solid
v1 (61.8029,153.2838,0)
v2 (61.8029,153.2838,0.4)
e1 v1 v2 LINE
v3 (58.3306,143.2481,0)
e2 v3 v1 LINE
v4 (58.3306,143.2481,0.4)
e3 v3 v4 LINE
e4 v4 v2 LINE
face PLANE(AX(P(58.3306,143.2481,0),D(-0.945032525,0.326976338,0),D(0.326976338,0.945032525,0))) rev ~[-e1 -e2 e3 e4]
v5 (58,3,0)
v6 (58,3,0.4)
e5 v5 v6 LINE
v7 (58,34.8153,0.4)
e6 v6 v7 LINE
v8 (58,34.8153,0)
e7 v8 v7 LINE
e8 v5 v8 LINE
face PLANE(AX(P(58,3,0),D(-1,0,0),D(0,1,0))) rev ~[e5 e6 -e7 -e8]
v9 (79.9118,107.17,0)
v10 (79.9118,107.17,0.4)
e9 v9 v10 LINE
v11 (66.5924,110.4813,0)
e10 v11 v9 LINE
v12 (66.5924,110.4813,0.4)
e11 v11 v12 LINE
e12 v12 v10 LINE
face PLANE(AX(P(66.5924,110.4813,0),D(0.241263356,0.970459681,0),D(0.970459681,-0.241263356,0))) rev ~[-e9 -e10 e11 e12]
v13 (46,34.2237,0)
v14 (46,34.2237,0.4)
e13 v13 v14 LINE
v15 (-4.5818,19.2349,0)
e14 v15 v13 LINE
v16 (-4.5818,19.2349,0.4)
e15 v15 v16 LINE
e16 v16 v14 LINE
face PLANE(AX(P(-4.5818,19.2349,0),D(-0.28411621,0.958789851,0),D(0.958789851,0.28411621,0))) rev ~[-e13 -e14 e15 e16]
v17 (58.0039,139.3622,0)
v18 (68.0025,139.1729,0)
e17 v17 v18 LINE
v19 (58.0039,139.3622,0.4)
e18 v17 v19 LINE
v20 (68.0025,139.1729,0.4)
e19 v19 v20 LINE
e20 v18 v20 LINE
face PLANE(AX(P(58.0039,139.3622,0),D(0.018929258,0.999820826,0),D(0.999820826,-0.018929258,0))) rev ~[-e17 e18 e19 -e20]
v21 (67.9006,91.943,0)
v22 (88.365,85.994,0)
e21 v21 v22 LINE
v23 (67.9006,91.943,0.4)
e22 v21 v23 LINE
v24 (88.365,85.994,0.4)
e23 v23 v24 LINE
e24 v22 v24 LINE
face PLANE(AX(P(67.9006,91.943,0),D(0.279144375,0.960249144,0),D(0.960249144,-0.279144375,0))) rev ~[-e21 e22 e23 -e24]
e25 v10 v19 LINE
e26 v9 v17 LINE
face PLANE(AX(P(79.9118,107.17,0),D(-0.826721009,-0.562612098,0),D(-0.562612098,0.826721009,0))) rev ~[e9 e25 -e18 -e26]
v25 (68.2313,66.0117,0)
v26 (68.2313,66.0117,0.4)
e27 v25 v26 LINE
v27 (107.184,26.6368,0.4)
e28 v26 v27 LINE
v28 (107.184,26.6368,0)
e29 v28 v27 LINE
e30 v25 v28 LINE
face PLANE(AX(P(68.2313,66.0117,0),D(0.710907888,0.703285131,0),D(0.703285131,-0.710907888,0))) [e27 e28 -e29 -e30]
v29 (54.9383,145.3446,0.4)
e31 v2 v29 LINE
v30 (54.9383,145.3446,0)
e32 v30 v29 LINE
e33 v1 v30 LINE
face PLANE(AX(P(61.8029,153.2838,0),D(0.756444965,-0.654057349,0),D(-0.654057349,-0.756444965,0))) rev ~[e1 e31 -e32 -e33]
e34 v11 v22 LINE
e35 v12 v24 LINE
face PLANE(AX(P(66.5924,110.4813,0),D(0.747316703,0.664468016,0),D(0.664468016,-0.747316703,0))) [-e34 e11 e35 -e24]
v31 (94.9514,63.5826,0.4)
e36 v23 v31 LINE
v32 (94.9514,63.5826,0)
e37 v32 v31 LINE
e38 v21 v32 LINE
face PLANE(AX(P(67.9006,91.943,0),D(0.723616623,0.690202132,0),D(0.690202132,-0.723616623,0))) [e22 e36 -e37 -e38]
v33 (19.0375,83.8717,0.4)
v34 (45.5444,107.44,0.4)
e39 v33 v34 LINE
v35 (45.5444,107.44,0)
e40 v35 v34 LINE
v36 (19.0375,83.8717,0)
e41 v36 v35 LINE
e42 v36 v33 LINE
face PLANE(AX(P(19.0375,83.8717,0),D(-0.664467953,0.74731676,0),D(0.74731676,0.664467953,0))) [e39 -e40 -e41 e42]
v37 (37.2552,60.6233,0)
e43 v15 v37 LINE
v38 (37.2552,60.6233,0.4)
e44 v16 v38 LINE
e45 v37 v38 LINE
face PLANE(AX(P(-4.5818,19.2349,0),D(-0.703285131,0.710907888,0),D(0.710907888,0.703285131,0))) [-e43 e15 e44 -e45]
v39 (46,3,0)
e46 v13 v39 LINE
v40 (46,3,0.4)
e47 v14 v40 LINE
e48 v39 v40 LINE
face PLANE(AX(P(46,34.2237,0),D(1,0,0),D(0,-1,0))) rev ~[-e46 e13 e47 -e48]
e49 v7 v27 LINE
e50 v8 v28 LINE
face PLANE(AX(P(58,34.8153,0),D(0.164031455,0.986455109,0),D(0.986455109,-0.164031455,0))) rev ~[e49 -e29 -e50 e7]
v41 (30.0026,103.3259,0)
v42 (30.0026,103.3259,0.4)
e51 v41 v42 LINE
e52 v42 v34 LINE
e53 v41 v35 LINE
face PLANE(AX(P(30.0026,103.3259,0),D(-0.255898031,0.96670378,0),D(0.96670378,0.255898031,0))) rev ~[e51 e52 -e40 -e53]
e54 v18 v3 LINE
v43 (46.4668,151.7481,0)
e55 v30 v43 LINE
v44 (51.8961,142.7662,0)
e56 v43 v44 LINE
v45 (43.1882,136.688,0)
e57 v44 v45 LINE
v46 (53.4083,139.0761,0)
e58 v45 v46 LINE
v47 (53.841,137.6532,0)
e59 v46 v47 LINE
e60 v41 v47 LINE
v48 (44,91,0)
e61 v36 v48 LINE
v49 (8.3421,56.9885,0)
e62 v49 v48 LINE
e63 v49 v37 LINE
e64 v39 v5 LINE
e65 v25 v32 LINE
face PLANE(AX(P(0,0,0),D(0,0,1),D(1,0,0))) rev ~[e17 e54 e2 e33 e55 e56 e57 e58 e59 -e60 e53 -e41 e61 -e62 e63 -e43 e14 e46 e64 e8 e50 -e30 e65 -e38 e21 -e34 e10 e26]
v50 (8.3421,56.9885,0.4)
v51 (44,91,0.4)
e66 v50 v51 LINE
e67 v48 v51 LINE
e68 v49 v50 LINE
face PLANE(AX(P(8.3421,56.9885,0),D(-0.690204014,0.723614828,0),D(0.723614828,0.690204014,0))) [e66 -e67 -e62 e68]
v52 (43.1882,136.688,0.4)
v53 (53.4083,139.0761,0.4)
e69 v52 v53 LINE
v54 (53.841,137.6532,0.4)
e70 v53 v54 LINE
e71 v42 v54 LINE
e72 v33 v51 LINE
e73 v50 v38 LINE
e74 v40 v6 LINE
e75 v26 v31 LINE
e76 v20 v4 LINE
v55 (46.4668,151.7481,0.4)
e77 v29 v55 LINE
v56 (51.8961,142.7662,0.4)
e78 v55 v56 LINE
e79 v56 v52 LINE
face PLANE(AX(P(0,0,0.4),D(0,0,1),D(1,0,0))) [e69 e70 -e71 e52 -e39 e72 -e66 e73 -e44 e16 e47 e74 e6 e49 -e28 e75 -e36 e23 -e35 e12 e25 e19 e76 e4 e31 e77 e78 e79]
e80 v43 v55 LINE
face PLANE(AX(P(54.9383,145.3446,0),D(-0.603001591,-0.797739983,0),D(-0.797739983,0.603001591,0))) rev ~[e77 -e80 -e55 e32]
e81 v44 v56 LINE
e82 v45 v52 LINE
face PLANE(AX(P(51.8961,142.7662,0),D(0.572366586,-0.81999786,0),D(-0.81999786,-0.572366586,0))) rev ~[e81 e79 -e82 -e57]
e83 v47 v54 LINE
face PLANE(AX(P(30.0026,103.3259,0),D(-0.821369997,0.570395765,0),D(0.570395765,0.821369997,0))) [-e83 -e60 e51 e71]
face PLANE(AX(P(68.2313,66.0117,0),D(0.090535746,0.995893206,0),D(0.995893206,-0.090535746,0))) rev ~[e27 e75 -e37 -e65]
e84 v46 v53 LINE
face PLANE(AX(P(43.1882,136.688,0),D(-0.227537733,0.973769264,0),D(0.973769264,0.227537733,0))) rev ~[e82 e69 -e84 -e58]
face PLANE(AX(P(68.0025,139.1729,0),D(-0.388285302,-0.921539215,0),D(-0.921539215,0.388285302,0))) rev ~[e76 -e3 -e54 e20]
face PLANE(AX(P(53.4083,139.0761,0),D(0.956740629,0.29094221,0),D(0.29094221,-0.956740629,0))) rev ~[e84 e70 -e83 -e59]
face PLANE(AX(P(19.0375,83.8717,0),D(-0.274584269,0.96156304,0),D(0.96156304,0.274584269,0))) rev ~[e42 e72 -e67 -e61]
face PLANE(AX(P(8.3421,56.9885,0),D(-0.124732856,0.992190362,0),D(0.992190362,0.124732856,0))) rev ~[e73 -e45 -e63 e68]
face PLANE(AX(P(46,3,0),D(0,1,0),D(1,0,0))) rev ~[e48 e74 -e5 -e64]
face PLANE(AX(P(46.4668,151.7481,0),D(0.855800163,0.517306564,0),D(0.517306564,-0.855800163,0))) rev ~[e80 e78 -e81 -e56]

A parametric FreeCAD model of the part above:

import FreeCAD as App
import Part
import Sketcher
from FreeCAD import Vector
Q = App.Units.Quantity


def add_polygon(sketch, points):
    """Adds a closed chain of lines whose ends are joined by coincident constraints."""
    first, n = sketch.GeometryCount, len(points)
    for a, b in zip(points, points[1:] + points[:1]):
        sketch.addGeometry(Part.LineSegment(App.Vector(*a, 0), App.Vector(*b, 0)), False)
    for i in range(n):
        sketch.addConstraint(Sketcher.Constraint("Coincident", first + i, 2, first + (i + 1) % n, 1))

doc = App.newDocument("Part")
params = doc.addObject("Spreadsheet::Sheet", "Params")
for row, (alias, value) in enumerate([
    ("sketch1_width", "12 mm"),
    ("sketch1_length", "58.85 mm"),
    ("pad1_length", "0.4 mm"),
], start=1):
    params.set(f"A{row}", alias)
    params.set(f"B{row}", "=" + value)
    params.setAlias(f"B{row}", alias)

body = doc.addObject("PartDesign::Body", "Body")

# Sketch on XY plane
sketch1 = body.newObject("Sketcher::SketchObject", "Sketch")
sketch1.AttachmentSupport = (doc.getObject("XY_Plane"), [""])
sketch1.MapMode = "FlatFace"
add_polygon(sketch1, [(46, 34.2), (46, 3), (58, 3), (58, 34.8), (107.2, 26.6), (68.2, 66), (95, 63.6), (67.9, 91.9), (88.4, 86), (66.6, 110.5), (79.9, 107.2), (58, 139.4), (68, 139.2), (58.3, 143.2), (61.8, 153.3), (54.9, 145.3), (46.5, 151.7), (51.9, 142.8), (43.2, 136.7), (53.4, 139.1), (53.8, 137.7), (30, 103.3), (45.5, 107.4), (19, 83.9), (44, 91), (8.3, 57), (37.3, 60.6), (-4.6, 19.2)])  # lines 0-27
sketch1.addConstraint([
    Sketcher.Constraint("Vertical", 0),
    Sketcher.Constraint("Horizontal", 1),
    Sketcher.Constraint("Vertical", 2),
    Sketcher.Constraint("Perpendicular", 8, 22),
    Sketcher.Constraint("Perpendicular", 6, 24),
    Sketcher.Constraint("Perpendicular", 4, 26),
    Sketcher.Constraint("Equal", 12, 14),
    Sketcher.Constraint("Equal", 13, 15),
    Sketcher.Constraint("Equal", 14, 16),
    Sketcher.Constraint("Equal", 15, 17),
    Sketcher.Constraint("Equal", 16, 18),
    Sketcher.Constraint("DistanceX", 1, 1, 1, 2, 12.0),
    Sketcher.Constraint("DistanceX", -1, 1, 0, 2, 46.0),
    Sketcher.Constraint("DistanceY", -1, 1, 0, 2, 3.0),
    Sketcher.Constraint("DistanceX", -1, 1, 23, 2, 44.0),
    Sketcher.Constraint("DistanceY", -1, 1, 23, 2, 91.0),
    Sketcher.Constraint("Angle", 3, Q("-9.441 deg")),
    Sketcher.Constraint("Angle", 4, Q("134.6912 deg")),
    Sketcher.Constraint("Angle", 7, Q("-16.2091 deg")),
    Sketcher.Constraint("Angle", 9, Q("-13.961 deg")),
    Sketcher.Constraint("DistanceY", 12, 2, 15, 2, 8.5),
    Sketcher.Constraint("Distance", 26, 58.85),
    Sketcher.Constraint("DistanceY", -1, 1, 9, 2, 107.17),
    Sketcher.Constraint("DistanceY", -1, 1, 21, 2, 107.44),
    Sketcher.Constraint("DistanceX", 4, 2, 5, 2, 26.72),
    Sketcher.Constraint("DistanceX", 8, 2, 11, 2, 1.41),
    Sketcher.Constraint("DistanceY", 6, 2, 11, 2, 47.23),
    Sketcher.Constraint("DistanceX", 12, 2, 6, 2, 9.57),
    Sketcher.Constraint("DistanceX", 17, 2, 14, 2, 11.75),
    Sketcher.Constraint("DistanceY", 17, 2, 15, 2, 15.06),
    Sketcher.Constraint("DistanceY", 18, 2, 16, 2, 3.69),
    Sketcher.Constraint("DistanceX", 18, 2, 14, 2, 1.53),
    Sketcher.Constraint("DistanceY", 4, 2, 22, 2, 17.86),
    Sketcher.Constraint("Distance", 8, 32.767),
    Sketcher.Constraint("Distance", 21, 16.077),
    Sketcher.Constraint("DistanceY", 0, 2, 0, 1, 31.2237),
    Sketcher.Constraint("DistanceY", 2, 1, 2, 2, 31.8153),
    Sketcher.Constraint("DistanceX", -1, 1, 3, 2, 107.184),
    Sketcher.Constraint("DistanceY", -1, 1, 6, 2, 91.943),
    Sketcher.Constraint("DistanceX", -1, 1, 7, 2, 88.365),
    Sketcher.Constraint("DistanceY", -1, 1, 7, 2, 85.994),
    Sketcher.Constraint("DistanceX", -1, 1, 10, 2, 58.004),
    Sketcher.Constraint("DistanceY", -1, 1, 12, 2, 143.248),
    Sketcher.Constraint("DistanceX", -1, 1, 13, 2, 61.803),
    Sketcher.Constraint("DistanceX", -1, 1, 16, 2, 51.896),
    Sketcher.Constraint("DistanceY", -1, 1, 18, 2, 139.076),
    Sketcher.Constraint("DistanceX", -1, 1, 19, 2, 53.841),
    Sketcher.Constraint("DistanceY", -1, 1, 20, 2, 103.326),
    Sketcher.Constraint("DistanceX", -1, 1, 24, 2, 8.342),
    Sketcher.Constraint("DistanceY", -1, 1, 26, 2, 19.235),
    Sketcher.Constraint("DistanceY", 3, 2, 4, 2, 39.375),
    Sketcher.Constraint("DistanceY", 5, 2, 4, 2, 2.429),
    Sketcher.Constraint("DistanceY", 8, 2, 10, 2, 28.881),
    Sketcher.Constraint("DistanceY", 19, 2, 18, 2, 1.423),
    Sketcher.Constraint("DistanceX", 20, 2, 6, 2, 37.898),
    Sketcher.Constraint("DistanceX", 24, 2, 25, 2, 28.913),
])
sketch1.setExpression("Constraints[39]", "Params.sketch1_width")
sketch1.setExpression("Constraints[49]", "Params.sketch1_length")
pad1 = body.newObject("PartDesign::Pad", "Pad")
pad1.Profile = sketch1
pad1.setExpression("Length", "Params.pad1_length")

doc.recompute()
